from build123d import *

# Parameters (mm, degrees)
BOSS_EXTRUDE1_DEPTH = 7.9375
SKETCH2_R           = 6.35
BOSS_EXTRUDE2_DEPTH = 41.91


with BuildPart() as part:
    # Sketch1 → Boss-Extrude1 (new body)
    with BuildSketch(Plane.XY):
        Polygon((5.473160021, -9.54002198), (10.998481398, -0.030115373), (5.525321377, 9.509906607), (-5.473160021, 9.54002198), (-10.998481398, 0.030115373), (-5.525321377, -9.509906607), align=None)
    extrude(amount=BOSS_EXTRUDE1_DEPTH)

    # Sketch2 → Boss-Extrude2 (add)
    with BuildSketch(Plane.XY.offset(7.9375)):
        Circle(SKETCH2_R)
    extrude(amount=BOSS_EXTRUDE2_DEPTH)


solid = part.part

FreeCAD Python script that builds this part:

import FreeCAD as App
import Part
import Sketcher

V = App.Vector
Q = App.Units.Quantity

doc = App.newDocument("Part")
body = doc.addObject("PartDesign::Body", "Body")

# Sketch on XY plane
sketch1 = doc.addObject("Sketcher::SketchObject", "Sketch")
body.addObject(sketch1)
sketch1.AttachmentSupport = (doc.XY_Plane, [""])
sketch1.MapMode = "FlatFace"
sketch1.addGeometry([
    Part.LineSegment(V(5.47316, -9.540022, 0), V(10.998481, -0.030115, 0)),  # 0
    Part.LineSegment(V(10.998481, -0.030115, 0), V(5.525321, 9.509907, 0)),  # 1
    Part.LineSegment(V(5.525321, 9.509907, 0), V(-5.47316, 9.540022, 0)),  # 2
    Part.LineSegment(V(-5.47316, 9.540022, 0), V(-10.998481, 0.030115, 0)),  # 3
    Part.LineSegment(V(-10.998481, 0.030115, 0), V(-5.525321, -9.509907, 0)),  # 4
    Part.LineSegment(V(-5.525321, -9.509907, 0), V(5.47316, -9.540022, 0)),  # 5
], False)
sketch1.addConstraint([
    Sketcher.Constraint("Coincident", 0, 2, 1, 1),
    Sketcher.Constraint("Coincident", 1, 2, 2, 1),
    Sketcher.Constraint("Coincident", 2, 2, 3, 1),
    Sketcher.Constraint("Coincident", 3, 2, 4, 1),
    Sketcher.Constraint("Coincident", 4, 2, 5, 1),
    Sketcher.Constraint("Coincident", 5, 2, 0, 1),
    Sketcher.Constraint("Symmetric", 0, 2, 3, 2, -1, 1),
    Sketcher.Constraint("Symmetric", 1, 2, 4, 2, -1, 1),
    Sketcher.Constraint("Symmetric", 2, 2, 5, 2, -1, 1),
    Sketcher.Constraint("Equal", 0, 1),
    Sketcher.Constraint("Equal", 1, 2),
    Sketcher.Constraint("DistanceX", -1, 1, 0, 2, 10.998481),
    Sketcher.Constraint("DistanceX", -1, 1, 1, 2, 5.525321),
    Sketcher.Constraint("DistanceX", 2, 2, -1, 1, 5.47316),
    Sketcher.Constraint("DistanceY", -1, 1, 2, 2, 9.540022),
])
pad1 = doc.addObject("PartDesign::Pad", "Pad")
body.addObject(pad1)
pad1.Profile = sketch1
pad1.Length = Q("0.3125 in")

# Sketch on XY plane
sketch2 = doc.addObject("Sketcher::SketchObject", "Sketch001")
body.addObject(sketch2)
sketch2.AttachmentSupport = (doc.XY_Plane, [""])
sketch2.MapMode = "FlatFace"
sketch2.AttachmentOffset = App.Placement(V(0, 0, 0.3125 * 25.4), App.Rotation())
sketch2.addGeometry(Part.Circle(V(0, 0, 0), V(0, 0, 1), 6.35), False)
sketch2.addConstraint([
    Sketcher.Constraint("Coincident", 0, 3, -1, 1),
    Sketcher.Constraint("Diameter", 0, Q("0.5 in")),
])
pad2 = doc.addObject("PartDesign::Pad", "Pad001")
body.addObject(pad2)
pad2.Profile = sketch2
pad2.Length = Q("1.65 in")

doc.recompute()
